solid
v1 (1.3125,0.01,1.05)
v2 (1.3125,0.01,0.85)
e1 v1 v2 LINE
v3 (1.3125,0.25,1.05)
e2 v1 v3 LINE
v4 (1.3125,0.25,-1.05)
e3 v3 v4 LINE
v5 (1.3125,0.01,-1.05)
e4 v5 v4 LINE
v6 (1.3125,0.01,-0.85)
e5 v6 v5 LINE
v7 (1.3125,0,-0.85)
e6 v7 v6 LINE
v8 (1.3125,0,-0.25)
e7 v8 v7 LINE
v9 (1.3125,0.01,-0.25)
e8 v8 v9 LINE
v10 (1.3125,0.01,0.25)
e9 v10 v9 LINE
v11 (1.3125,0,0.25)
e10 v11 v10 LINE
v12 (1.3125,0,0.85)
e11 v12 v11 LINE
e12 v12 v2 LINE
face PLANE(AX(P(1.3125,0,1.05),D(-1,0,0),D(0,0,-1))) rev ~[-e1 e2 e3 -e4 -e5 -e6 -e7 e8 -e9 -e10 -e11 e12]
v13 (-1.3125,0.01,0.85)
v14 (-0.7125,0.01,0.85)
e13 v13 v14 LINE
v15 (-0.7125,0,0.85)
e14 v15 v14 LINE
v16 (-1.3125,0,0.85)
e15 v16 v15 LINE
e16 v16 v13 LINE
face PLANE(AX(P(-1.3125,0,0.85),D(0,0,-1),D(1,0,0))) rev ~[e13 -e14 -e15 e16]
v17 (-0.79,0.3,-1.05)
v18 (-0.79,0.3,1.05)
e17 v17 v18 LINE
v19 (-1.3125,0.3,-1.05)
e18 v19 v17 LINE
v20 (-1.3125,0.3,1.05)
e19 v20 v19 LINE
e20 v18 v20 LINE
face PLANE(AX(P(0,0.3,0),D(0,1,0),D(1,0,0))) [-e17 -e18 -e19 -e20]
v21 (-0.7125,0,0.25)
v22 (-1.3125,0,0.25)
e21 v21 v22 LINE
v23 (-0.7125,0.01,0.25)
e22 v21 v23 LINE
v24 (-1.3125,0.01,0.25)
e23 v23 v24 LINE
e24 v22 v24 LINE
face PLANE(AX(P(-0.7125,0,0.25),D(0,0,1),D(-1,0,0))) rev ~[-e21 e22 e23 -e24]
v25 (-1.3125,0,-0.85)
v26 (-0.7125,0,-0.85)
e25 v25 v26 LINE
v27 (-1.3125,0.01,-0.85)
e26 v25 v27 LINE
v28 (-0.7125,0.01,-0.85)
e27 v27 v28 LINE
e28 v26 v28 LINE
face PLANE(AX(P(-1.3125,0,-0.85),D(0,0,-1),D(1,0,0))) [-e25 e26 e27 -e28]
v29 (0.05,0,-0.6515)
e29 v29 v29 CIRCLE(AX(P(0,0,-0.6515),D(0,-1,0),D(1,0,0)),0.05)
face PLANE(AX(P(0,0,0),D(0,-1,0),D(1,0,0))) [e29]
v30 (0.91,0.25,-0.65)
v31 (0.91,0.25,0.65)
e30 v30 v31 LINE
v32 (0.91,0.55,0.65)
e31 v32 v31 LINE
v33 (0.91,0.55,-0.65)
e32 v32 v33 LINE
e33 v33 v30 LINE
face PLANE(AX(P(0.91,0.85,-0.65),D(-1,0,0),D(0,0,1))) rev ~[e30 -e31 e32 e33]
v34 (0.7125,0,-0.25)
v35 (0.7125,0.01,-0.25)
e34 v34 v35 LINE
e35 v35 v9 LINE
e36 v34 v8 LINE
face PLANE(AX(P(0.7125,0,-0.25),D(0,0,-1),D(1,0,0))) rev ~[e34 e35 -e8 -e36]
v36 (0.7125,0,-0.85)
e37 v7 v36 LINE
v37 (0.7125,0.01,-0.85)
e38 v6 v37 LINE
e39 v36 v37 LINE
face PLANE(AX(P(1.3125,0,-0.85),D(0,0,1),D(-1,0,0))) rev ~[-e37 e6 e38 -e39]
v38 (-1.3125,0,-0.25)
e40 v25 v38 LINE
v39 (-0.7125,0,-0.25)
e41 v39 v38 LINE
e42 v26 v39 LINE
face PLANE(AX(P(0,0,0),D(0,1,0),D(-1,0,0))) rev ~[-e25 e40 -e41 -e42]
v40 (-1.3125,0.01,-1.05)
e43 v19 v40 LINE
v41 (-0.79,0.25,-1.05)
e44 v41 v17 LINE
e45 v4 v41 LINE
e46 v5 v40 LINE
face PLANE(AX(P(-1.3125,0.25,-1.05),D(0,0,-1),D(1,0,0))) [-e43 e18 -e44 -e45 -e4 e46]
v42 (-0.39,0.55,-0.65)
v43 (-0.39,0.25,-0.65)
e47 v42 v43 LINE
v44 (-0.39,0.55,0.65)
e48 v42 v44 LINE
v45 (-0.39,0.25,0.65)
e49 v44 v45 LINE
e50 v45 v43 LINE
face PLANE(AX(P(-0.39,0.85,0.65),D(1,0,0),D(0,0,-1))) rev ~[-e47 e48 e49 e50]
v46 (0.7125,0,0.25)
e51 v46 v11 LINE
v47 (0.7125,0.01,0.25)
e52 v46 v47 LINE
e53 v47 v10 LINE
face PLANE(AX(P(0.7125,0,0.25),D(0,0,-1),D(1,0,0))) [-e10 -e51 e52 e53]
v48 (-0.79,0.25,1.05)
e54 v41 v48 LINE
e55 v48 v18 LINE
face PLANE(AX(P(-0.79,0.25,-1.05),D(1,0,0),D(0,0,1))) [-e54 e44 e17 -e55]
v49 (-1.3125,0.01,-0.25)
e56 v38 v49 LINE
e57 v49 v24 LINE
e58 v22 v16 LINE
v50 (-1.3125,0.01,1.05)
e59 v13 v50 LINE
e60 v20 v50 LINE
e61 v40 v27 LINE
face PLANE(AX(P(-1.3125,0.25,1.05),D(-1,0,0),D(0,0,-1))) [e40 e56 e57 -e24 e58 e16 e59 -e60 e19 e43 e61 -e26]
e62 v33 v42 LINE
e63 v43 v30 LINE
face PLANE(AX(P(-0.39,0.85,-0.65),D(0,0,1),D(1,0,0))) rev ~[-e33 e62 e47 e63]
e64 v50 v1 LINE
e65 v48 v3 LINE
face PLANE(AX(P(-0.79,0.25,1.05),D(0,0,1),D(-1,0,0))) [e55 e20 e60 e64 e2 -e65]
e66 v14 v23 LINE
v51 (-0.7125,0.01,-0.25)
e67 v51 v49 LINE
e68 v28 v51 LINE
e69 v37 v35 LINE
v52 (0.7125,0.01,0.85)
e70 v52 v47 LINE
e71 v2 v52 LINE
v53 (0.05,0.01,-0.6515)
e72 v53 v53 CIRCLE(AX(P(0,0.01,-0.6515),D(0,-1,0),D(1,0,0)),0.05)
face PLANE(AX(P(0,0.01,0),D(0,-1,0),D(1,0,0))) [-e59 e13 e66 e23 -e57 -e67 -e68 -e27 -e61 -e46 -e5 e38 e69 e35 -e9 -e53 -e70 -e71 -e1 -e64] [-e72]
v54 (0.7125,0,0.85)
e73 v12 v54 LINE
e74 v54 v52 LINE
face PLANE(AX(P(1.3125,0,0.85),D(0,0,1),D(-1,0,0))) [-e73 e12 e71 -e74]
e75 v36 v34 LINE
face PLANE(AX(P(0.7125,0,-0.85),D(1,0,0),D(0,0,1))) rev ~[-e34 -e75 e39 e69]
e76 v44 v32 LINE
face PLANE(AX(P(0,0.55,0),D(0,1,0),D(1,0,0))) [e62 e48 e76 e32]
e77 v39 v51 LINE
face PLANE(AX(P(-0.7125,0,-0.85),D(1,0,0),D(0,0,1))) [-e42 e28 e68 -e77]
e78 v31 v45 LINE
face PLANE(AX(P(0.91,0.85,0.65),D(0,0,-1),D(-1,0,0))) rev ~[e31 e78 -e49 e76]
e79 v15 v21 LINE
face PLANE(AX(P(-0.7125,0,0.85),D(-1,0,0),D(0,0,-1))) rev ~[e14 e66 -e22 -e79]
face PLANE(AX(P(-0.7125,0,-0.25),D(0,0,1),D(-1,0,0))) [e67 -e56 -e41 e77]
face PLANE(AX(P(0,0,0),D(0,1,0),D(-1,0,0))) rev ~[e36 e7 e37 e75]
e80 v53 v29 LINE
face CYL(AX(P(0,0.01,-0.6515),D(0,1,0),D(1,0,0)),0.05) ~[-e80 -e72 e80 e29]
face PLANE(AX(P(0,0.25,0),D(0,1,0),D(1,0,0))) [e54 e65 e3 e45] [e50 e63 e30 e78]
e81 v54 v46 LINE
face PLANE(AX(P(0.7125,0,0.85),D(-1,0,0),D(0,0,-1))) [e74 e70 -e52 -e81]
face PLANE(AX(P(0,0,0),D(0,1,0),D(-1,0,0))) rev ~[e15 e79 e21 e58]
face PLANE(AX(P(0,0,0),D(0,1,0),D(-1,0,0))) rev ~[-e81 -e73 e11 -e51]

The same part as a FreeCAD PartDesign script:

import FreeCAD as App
import Part
import Sketcher
Q = App.Units.Quantity

doc = App.newDocument("Part")
params = doc.addObject("Spreadsheet::Sheet", "Params")
for row, (alias, value) in enumerate([
    ("sketch1_height", "2.1 mm"),
    ("pad1_length", "0.85 mm"),
    ("sketch2_width", "1.3 mm"),
    ("pocket1_length", "0.3 mm"),
    ("sketch3_width", "1.3 mm"),
    ("sketch3_height", "2.1 mm"),
    ("pocket2_length", "0.6 mm"),
    ("sketch4_height", "2.1 mm"),
    ("pad2_length", "0.05 mm"),
    ("sketch5_width", "0.6 mm"),
    ("sketch5_height", "0.2 mm"),
    ("pocket3_length", "0.01 mm"),
    ("sketch6_diameter", "0.1 mm"),
    ("pad3_length", "0.01 mm"),
], start=1):
    params.set(f"A{row}", alias)
    params.set(f"B{row}", "=" + value)
    params.setAlias(f"B{row}", alias)

body = doc.addObject("PartDesign::Body", "Body")

# Sketch on XZ plane
sketch1 = body.newObject("Sketcher::SketchObject", "Sketch")
sketch1.AttachmentSupport = (doc.getObject("XZ_Plane"), [""])
sketch1.MapMode = "FlatFace"
sketch1.addGeometry([
    Part.LineSegment(App.Vector(-1.3, -1.1, 0), App.Vector(-1.3, 1.1, 0)),
    Part.LineSegment(App.Vector(-1.3, 1.1, 0), App.Vector(1.3, 1.1, 0)),
    Part.LineSegment(App.Vector(1.3, 1.1, 0), App.Vector(1.3, -1.1, 0)),
    Part.LineSegment(App.Vector(1.3, -1.1, 0), App.Vector(-1.3, -1.1, 0)),
], False)
sketch1.addConstraint([
    Sketcher.Constraint("Coincident", 0, 2, 1, 1),
    Sketcher.Constraint("Coincident", 1, 2, 2, 1),
    Sketcher.Constraint("Coincident", 2, 2, 3, 1),
    Sketcher.Constraint("Coincident", 3, 2, 0, 1),
    Sketcher.Constraint("Vertical", 0),
    Sketcher.Constraint("Horizontal", 1),
    Sketcher.Constraint("Vertical", 2),
    Sketcher.Constraint("Horizontal", 3),
    Sketcher.Constraint("Symmetric", 0, 2, 2, 2, -1, 1),
    Sketcher.Constraint("DistanceY", 0, 1, 0, 2, Q("2.1 mm")),
    Sketcher.Constraint("DistanceX", 1, 1, 1, 2, Q("2.625 mm")),
])
sketch1.setExpression("Constraints[9]", "Params.sketch1_height")
pad1 = body.newObject("PartDesign::Pad", "Pad")
pad1.Profile = sketch1
pad1.setExpression("Length", "Params.pad1_length")
pad1.Reversed = True

# Sketch on XZ plane
sketch2 = body.newObject("Sketcher::SketchObject", "Sketch001")
sketch2.AttachmentSupport = (doc.getObject("XZ_Plane"), [""])
sketch2.MapMode = "FlatFace"
sketch2.AttachmentOffset = App.Placement(App.Vector(0, 0, -0.85), App.Rotation())
sketch2.addGeometry([
    Part.LineSegment(App.Vector(-0.4, -0.7, 0), App.Vector(-0.4, 0.7, 0)),
    Part.LineSegment(App.Vector(-0.4, 0.7, 0), App.Vector(0.9, 0.7, 0)),
    Part.LineSegment(App.Vector(0.9, 0.7, 0), App.Vector(0.9, -0.7, 0)),
    Part.LineSegment(App.Vector(0.9, -0.7, 0), App.Vector(-0.4, -0.7, 0)),
], False)
sketch2.addConstraint([
    Sketcher.Constraint("Coincident", 0, 2, 1, 1),
    Sketcher.Constraint("Coincident", 1, 2, 2, 1),
    Sketcher.Constraint("Coincident", 2, 2, 3, 1),
    Sketcher.Constraint("Coincident", 3, 2, 0, 1),
    Sketcher.Constraint("Vertical", 0),
    Sketcher.Constraint("Horizontal", 1),
    Sketcher.Constraint("Vertical", 2),
    Sketcher.Constraint("Horizontal", 3),
    Sketcher.Constraint("Equal", 3, 0),
    Sketcher.Constraint("DistanceX", 1, 1, 1, 2, Q("1.3 mm")),
    Sketcher.Constraint("DistanceX", 0, 2, -1, 1, Q("0.39 mm")),
    Sketcher.Constraint("DistanceY", -1, 1, 0, 2, Q("0.65 mm")),
])
sketch2.setExpression("Constraints[9]", "Params.sketch2_width")
pocket1 = body.newObject("PartDesign::Pocket", "Pocket")
pocket1.Profile = sketch2
pocket1.setExpression("Length", "Params.pocket1_length")
pocket1.Reversed = True

# Sketch on XZ plane
sketch3 = body.newObject("Sketcher::SketchObject", "Sketch002")
sketch3.AttachmentSupport = (doc.getObject("XZ_Plane"), [""])
sketch3.MapMode = "FlatFace"
sketch3.AttachmentOffset = App.Placement(App.Vector(0, 0, -0.85), App.Rotation())
sketch3.addGeometry([
    Part.LineSegment(App.Vector(-1.3, -1.1, 0), App.Vector(-1.3, 1.1, 0)),  # 0
    Part.LineSegment(App.Vector(-1.3, 1.1, 0), App.Vector(1.3, 1.1, 0)),  # 1
    Part.LineSegment(App.Vector(1.3, 1.1, 0), App.Vector(1.3, -1.1, 0)),  # 2
    Part.LineSegment(App.Vector(1.3, -1.1, 0), App.Vector(-1.3, -1.1, 0)),  # 3
    Part.LineSegment(App.Vector(-0.4, -0.7, 0), App.Vector(0.9, -0.7, 0)),  # 4
    Part.LineSegment(App.Vector(0.9, -0.7, 0), App.Vector(0.9, 0.7, 0)),  # 5
    Part.LineSegment(App.Vector(0.9, 0.7, 0), App.Vector(-0.4, 0.7, 0)),  # 6
    Part.LineSegment(App.Vector(-0.4, 0.7, 0), App.Vector(-0.4, -0.7, 0)),  # 7
], False)
sketch3.addConstraint([
    Sketcher.Constraint("Coincident", 0, 2, 1, 1),
    Sketcher.Constraint("Coincident", 1, 2, 2, 1),
    Sketcher.Constraint("Coincident", 2, 2, 3, 1),
    Sketcher.Constraint("Coincident", 3, 2, 0, 1),
    Sketcher.Constraint("Coincident", 4, 2, 5, 1),
    Sketcher.Constraint("Coincident", 5, 2, 6, 1),
    Sketcher.Constraint("Coincident", 6, 2, 7, 1),
    Sketcher.Constraint("Coincident", 7, 2, 4, 1),
    Sketcher.Constraint("Vertical", 0),
    Sketcher.Constraint("Horizontal", 1),
    Sketcher.Constraint("Vertical", 2),
    Sketcher.Constraint("Horizontal", 3),
    Sketcher.Constraint("Horizontal", 4),
    Sketcher.Constraint("Vertical", 5),
    Sketcher.Constraint("Horizontal", 6),
    Sketcher.Constraint("Vertical", 7),
    Sketcher.Constraint("Symmetric", 0, 2, 2, 2, -1, 1),
    Sketcher.Constraint("Equal", 6, 5),
    Sketcher.Constraint("DistanceX", 4, 1, 4, 2, Q("1.3 mm")),
    Sketcher.Constraint("DistanceY", 0, 1, 0, 2, Q("2.1 mm")),
    Sketcher.Constraint("DistanceY", 2, 2, 4, 2, Q("0.4 mm")),
    Sketcher.Constraint("DistanceX", 1, 1, 1, 2, Q("2.625 mm")),
    Sketcher.Constraint("DistanceX", -1, 1, 4, 2, Q("0.91 mm")),
])
sketch3.setExpression("Constraints[18]", "Params.sketch3_width")
sketch3.setExpression("Constraints[19]", "Params.sketch3_height")
pocket2 = body.newObject("PartDesign::Pocket", "Pocket001")
pocket2.Profile = sketch3
pocket2.setExpression("Length", "Params.pocket2_length")
pocket2.Reversed = True

# Sketch on XZ plane
sketch4 = body.newObject("Sketcher::SketchObject", "Sketch003")
sketch4.AttachmentSupport = (doc.getObject("XZ_Plane"), [""])
sketch4.MapMode = "FlatFace"
sketch4.AttachmentOffset = App.Placement(App.Vector(0, 0, -0.25), App.Rotation())
sketch4.addGeometry([
    Part.LineSegment(App.Vector(-1.3, 1.1, 0), App.Vector(-0.8, 1.1, 0)),
    Part.LineSegment(App.Vector(-0.8, 1.1, 0), App.Vector(-0.8, -1.1, 0)),
    Part.LineSegment(App.Vector(-0.8, -1.1, 0), App.Vector(-1.3, -1.1, 0)),
    Part.LineSegment(App.Vector(-1.3, -1.1, 0), App.Vector(-1.3, 1.1, 0)),
], False)
sketch4.addConstraint([
    Sketcher.Constraint("Coincident", 0, 2, 1, 1),
    Sketcher.Constraint("Coincident", 1, 2, 2, 1),
    Sketcher.Constraint("Coincident", 2, 2, 3, 1),
    Sketcher.Constraint("Coincident", 3, 2, 0, 1),
    Sketcher.Constraint("Horizontal", 0),
    Sketcher.Constraint("Vertical", 1),
    Sketcher.Constraint("Horizontal", 2),
    Sketcher.Constraint("Vertical", 3),
    Sketcher.Constraint("DistanceY", 1, 2, 1, 1, Q("2.1 mm")),
    Sketcher.Constraint("DistanceX", 0, 2, -1, 1, Q("0.79 mm")),
    Sketcher.Constraint("DistanceY", -1, 1, 0, 2, Q("1.05 mm")),
    Sketcher.Constraint("DistanceX", 0, 1, 0, 2, Q("0.5225 mm")),
])
sketch4.setExpression("Constraints[8]", "Params.sketch4_height")
pad2 = body.newObject("PartDesign::Pad", "Pad001")
pad2.Profile = sketch4
pad2.setExpression("Length", "Params.pad2_length")
pad2.Reversed = True

# Sketch on XZ plane
sketch5 = body.newObject("Sketcher::SketchObject", "Sketch004")
sketch5.AttachmentSupport = (doc.getObject("XZ_Plane"), [""])
sketch5.MapMode = "FlatFace"
sketch5.addGeometry([
    Part.LineSegment(App.Vector(1.31, 1.05, 0), App.Vector(-1.31, 1.05, 0)),  # 0
    Part.LineSegment(App.Vector(-1.31, 1.05, 0), App.Vector(-1.31, 0.85, 0)),  # 1
    Part.LineSegment(App.Vector(-1.31, 0.85, 0), App.Vector(-0.71, 0.85, 0)),  # 2
    Part.LineSegment(App.Vector(-0.71, 0.85, 0), App.Vector(-0.71, 0.25, 0)),  # 3
    Part.LineSegment(App.Vector(-0.71, 0.25, 0), App.Vector(-1.31, 0.25, 0)),  # 4
    Part.LineSegment(App.Vector(-1.31, 0.25, 0), App.Vector(-1.31, -0.25, 0)),  # 5
    Part.LineSegment(App.Vector(-1.31, -0.25, 0), App.Vector(-0.71, -0.25, 0)),  # 6
    Part.LineSegment(App.Vector(-0.71, -0.25, 0), App.Vector(-0.71, -0.85, 0)),  # 7
    Part.LineSegment(App.Vector(-0.71, -0.85, 0), App.Vector(-1.31, -0.85, 0)),  # 8
    Part.LineSegment(App.Vector(-1.31, -0.85, 0), App.Vector(-1.31, -1.05, 0)),  # 9
    Part.LineSegment(App.Vector(-1.31, -1.05, 0), App.Vector(1.31, -1.05, 0)),  # 10
    Part.LineSegment(App.Vector(1.31, -1.05, 0), App.Vector(1.31, -0.85, 0)),  # 11
    Part.LineSegment(App.Vector(1.31, -0.85, 0), App.Vector(0.71, -0.85, 0)),  # 12
    Part.LineSegment(App.Vector(0.71, -0.85, 0), App.Vector(0.71, -0.25, 0)),  # 13
    Part.LineSegment(App.Vector(0.71, -0.25, 0), App.Vector(1.31, -0.25, 0)),  # 14
    Part.LineSegment(App.Vector(1.31, -0.25, 0), App.Vector(1.31, 0.25, 0)),  # 15
    Part.LineSegment(App.Vector(1.31, 0.25, 0), App.Vector(0.71, 0.25, 0)),  # 16
    Part.LineSegment(App.Vector(0.71, 0.25, 0), App.Vector(0.71, 0.85, 0)),  # 17
    Part.LineSegment(App.Vector(0.71, 0.85, 0), App.Vector(1.31, 0.85, 0)),  # 18
    Part.LineSegment(App.Vector(1.31, 0.85, 0), App.Vector(1.31, 1.05, 0)),  # 19
], False)
sketch5.addConstraint([
    Sketcher.Constraint("Coincident", 0, 2, 1, 1),
    Sketcher.Constraint("Coincident", 1, 2, 2, 1),
    Sketcher.Constraint("Coincident", 2, 2, 3, 1),
    Sketcher.Constraint("Coincident", 3, 2, 4, 1),
    Sketcher.Constraint("Coincident", 4, 2, 5, 1),
    Sketcher.Constraint("Coincident", 5, 2, 6, 1),
    Sketcher.Constraint("Coincident", 6, 2, 7, 1),
    Sketcher.Constraint("Coincident", 7, 2, 8, 1),
    Sketcher.Constraint("Coincident", 8, 2, 9, 1),
    Sketcher.Constraint("Coincident", 9, 2, 10, 1),
    Sketcher.Constraint("Coincident", 10, 2, 11, 1),
    Sketcher.Constraint("Coincident", 11, 2, 12, 1),
    Sketcher.Constraint("Coincident", 12, 2, 13, 1),
    Sketcher.Constraint("Coincident", 13, 2, 14, 1),
    Sketcher.Constraint("Coincident", 14, 2, 15, 1),
    Sketcher.Constraint("Coincident", 15, 2, 16, 1),
    Sketcher.Constraint("Coincident", 16, 2, 17, 1),
    Sketcher.Constraint("Coincident", 17, 2, 18, 1),
    Sketcher.Constraint("Coincident", 18, 2, 19, 1),
    Sketcher.Constraint("Coincident", 19, 2, 0, 1),
    Sketcher.Constraint("Horizontal", 0),
    Sketcher.Constraint("Vertical", 1),
    Sketcher.Constraint("Horizontal", 2),
    Sketcher.Constraint("Vertical", 3),
    Sketcher.Constraint("Horizontal", 4),
    Sketcher.Constraint("Vertical", 5),
    Sketcher.Constraint("Horizontal", 6),
    Sketcher.Constraint("Vertical", 7),
    Sketcher.Constraint("Horizontal", 8),
    Sketcher.Constraint("Vertical", 9),
    Sketcher.Constraint("Horizontal", 10),
    Sketcher.Constraint("Vertical", 11),
    Sketcher.Constraint("Horizontal", 12),
    Sketcher.Constraint("Vertical", 13),
    Sketcher.Constraint("Horizontal", 14),
    Sketcher.Constraint("Vertical", 15),
    Sketcher.Constraint("Horizontal", 16),
    Sketcher.Constraint("Vertical", 17),
    Sketcher.Constraint("Horizontal", 18),
    Sketcher.Constraint("Vertical", 19),
    Sketcher.Constraint("Symmetric", 0, 2, 10, 2, -1, 1),
    Sketcher.Constraint("Symmetric", 2, 2, 12, 2, -1, 1),
    Sketcher.Constraint("Symmetric", 4, 2, 14, 2, -1, 1),
    Sketcher.Constraint("Symmetric", 6, 2, 16, 2, -1, 1),
    Sketcher.Constraint("Symmetric", 8, 2, 18, 2, -1, 1),
    Sketcher.Constraint("Symmetric", 8, 2, 11, 2, -2),
    Sketcher.Constraint("Symmetric", 6, 2, 13, 2, -2),
    Sketcher.Constraint("Vertical", 1, 2, 4, 2),
    Sketcher.Constraint("Equal", 18, 3),
    Sketcher.Constraint("DistanceX", 2, 1, 2, 2, Q("0.6 mm")),
    Sketcher.Constraint("DistanceY", -1, 1, 3, 2, Q("0.25 mm")),
    Sketcher.Constraint("DistanceY", 1, 2, 1, 1, Q("0.2 mm")),
    Sketcher.Constraint("DistanceX", 0, 2, 0, 1, Q("2.625 mm")),
])
sketch5.setExpression("Constraints[49]", "Params.sketch5_width")
sketch5.setExpression("Constraints[51]", "Params.sketch5_height")
pocket3 = body.newObject("PartDesign::Pocket", "Pocket002")
pocket3.Profile = sketch5
pocket3.setExpression("Length", "Params.pocket3_length")

# Sketch on XZ plane
sketch6 = body.newObject("Sketcher::SketchObject", "Sketch005")
sketch6.AttachmentSupport = (doc.getObject("XZ_Plane"), [""])
sketch6.MapMode = "FlatFace"
sketch6.AttachmentOffset = App.Placement(App.Vector(0, 0, -0.01), App.Rotation())
sketch6.addGeometry(Part.Circle(App.Vector(0, -0.65, 0), App.Vector(0, 0, 1), 0.05), False)
sketch6.addConstraint([
    Sketcher.Constraint("PointOnObject", 0, 3, -2),
    Sketcher.Constraint("Diameter", 0, Q("0.1 mm")),
    Sketcher.Constraint("DistanceY", 0, 3, -1, 1, Q("0.6515 mm")),
])
sketch6.setExpression("Constraints[1]", "Params.sketch6_diameter")
pad3 = body.newObject("PartDesign::Pad", "Pad002")
pad3.Profile = sketch6
pad3.setExpression("Length", "Params.pad3_length")

doc.recompute()
